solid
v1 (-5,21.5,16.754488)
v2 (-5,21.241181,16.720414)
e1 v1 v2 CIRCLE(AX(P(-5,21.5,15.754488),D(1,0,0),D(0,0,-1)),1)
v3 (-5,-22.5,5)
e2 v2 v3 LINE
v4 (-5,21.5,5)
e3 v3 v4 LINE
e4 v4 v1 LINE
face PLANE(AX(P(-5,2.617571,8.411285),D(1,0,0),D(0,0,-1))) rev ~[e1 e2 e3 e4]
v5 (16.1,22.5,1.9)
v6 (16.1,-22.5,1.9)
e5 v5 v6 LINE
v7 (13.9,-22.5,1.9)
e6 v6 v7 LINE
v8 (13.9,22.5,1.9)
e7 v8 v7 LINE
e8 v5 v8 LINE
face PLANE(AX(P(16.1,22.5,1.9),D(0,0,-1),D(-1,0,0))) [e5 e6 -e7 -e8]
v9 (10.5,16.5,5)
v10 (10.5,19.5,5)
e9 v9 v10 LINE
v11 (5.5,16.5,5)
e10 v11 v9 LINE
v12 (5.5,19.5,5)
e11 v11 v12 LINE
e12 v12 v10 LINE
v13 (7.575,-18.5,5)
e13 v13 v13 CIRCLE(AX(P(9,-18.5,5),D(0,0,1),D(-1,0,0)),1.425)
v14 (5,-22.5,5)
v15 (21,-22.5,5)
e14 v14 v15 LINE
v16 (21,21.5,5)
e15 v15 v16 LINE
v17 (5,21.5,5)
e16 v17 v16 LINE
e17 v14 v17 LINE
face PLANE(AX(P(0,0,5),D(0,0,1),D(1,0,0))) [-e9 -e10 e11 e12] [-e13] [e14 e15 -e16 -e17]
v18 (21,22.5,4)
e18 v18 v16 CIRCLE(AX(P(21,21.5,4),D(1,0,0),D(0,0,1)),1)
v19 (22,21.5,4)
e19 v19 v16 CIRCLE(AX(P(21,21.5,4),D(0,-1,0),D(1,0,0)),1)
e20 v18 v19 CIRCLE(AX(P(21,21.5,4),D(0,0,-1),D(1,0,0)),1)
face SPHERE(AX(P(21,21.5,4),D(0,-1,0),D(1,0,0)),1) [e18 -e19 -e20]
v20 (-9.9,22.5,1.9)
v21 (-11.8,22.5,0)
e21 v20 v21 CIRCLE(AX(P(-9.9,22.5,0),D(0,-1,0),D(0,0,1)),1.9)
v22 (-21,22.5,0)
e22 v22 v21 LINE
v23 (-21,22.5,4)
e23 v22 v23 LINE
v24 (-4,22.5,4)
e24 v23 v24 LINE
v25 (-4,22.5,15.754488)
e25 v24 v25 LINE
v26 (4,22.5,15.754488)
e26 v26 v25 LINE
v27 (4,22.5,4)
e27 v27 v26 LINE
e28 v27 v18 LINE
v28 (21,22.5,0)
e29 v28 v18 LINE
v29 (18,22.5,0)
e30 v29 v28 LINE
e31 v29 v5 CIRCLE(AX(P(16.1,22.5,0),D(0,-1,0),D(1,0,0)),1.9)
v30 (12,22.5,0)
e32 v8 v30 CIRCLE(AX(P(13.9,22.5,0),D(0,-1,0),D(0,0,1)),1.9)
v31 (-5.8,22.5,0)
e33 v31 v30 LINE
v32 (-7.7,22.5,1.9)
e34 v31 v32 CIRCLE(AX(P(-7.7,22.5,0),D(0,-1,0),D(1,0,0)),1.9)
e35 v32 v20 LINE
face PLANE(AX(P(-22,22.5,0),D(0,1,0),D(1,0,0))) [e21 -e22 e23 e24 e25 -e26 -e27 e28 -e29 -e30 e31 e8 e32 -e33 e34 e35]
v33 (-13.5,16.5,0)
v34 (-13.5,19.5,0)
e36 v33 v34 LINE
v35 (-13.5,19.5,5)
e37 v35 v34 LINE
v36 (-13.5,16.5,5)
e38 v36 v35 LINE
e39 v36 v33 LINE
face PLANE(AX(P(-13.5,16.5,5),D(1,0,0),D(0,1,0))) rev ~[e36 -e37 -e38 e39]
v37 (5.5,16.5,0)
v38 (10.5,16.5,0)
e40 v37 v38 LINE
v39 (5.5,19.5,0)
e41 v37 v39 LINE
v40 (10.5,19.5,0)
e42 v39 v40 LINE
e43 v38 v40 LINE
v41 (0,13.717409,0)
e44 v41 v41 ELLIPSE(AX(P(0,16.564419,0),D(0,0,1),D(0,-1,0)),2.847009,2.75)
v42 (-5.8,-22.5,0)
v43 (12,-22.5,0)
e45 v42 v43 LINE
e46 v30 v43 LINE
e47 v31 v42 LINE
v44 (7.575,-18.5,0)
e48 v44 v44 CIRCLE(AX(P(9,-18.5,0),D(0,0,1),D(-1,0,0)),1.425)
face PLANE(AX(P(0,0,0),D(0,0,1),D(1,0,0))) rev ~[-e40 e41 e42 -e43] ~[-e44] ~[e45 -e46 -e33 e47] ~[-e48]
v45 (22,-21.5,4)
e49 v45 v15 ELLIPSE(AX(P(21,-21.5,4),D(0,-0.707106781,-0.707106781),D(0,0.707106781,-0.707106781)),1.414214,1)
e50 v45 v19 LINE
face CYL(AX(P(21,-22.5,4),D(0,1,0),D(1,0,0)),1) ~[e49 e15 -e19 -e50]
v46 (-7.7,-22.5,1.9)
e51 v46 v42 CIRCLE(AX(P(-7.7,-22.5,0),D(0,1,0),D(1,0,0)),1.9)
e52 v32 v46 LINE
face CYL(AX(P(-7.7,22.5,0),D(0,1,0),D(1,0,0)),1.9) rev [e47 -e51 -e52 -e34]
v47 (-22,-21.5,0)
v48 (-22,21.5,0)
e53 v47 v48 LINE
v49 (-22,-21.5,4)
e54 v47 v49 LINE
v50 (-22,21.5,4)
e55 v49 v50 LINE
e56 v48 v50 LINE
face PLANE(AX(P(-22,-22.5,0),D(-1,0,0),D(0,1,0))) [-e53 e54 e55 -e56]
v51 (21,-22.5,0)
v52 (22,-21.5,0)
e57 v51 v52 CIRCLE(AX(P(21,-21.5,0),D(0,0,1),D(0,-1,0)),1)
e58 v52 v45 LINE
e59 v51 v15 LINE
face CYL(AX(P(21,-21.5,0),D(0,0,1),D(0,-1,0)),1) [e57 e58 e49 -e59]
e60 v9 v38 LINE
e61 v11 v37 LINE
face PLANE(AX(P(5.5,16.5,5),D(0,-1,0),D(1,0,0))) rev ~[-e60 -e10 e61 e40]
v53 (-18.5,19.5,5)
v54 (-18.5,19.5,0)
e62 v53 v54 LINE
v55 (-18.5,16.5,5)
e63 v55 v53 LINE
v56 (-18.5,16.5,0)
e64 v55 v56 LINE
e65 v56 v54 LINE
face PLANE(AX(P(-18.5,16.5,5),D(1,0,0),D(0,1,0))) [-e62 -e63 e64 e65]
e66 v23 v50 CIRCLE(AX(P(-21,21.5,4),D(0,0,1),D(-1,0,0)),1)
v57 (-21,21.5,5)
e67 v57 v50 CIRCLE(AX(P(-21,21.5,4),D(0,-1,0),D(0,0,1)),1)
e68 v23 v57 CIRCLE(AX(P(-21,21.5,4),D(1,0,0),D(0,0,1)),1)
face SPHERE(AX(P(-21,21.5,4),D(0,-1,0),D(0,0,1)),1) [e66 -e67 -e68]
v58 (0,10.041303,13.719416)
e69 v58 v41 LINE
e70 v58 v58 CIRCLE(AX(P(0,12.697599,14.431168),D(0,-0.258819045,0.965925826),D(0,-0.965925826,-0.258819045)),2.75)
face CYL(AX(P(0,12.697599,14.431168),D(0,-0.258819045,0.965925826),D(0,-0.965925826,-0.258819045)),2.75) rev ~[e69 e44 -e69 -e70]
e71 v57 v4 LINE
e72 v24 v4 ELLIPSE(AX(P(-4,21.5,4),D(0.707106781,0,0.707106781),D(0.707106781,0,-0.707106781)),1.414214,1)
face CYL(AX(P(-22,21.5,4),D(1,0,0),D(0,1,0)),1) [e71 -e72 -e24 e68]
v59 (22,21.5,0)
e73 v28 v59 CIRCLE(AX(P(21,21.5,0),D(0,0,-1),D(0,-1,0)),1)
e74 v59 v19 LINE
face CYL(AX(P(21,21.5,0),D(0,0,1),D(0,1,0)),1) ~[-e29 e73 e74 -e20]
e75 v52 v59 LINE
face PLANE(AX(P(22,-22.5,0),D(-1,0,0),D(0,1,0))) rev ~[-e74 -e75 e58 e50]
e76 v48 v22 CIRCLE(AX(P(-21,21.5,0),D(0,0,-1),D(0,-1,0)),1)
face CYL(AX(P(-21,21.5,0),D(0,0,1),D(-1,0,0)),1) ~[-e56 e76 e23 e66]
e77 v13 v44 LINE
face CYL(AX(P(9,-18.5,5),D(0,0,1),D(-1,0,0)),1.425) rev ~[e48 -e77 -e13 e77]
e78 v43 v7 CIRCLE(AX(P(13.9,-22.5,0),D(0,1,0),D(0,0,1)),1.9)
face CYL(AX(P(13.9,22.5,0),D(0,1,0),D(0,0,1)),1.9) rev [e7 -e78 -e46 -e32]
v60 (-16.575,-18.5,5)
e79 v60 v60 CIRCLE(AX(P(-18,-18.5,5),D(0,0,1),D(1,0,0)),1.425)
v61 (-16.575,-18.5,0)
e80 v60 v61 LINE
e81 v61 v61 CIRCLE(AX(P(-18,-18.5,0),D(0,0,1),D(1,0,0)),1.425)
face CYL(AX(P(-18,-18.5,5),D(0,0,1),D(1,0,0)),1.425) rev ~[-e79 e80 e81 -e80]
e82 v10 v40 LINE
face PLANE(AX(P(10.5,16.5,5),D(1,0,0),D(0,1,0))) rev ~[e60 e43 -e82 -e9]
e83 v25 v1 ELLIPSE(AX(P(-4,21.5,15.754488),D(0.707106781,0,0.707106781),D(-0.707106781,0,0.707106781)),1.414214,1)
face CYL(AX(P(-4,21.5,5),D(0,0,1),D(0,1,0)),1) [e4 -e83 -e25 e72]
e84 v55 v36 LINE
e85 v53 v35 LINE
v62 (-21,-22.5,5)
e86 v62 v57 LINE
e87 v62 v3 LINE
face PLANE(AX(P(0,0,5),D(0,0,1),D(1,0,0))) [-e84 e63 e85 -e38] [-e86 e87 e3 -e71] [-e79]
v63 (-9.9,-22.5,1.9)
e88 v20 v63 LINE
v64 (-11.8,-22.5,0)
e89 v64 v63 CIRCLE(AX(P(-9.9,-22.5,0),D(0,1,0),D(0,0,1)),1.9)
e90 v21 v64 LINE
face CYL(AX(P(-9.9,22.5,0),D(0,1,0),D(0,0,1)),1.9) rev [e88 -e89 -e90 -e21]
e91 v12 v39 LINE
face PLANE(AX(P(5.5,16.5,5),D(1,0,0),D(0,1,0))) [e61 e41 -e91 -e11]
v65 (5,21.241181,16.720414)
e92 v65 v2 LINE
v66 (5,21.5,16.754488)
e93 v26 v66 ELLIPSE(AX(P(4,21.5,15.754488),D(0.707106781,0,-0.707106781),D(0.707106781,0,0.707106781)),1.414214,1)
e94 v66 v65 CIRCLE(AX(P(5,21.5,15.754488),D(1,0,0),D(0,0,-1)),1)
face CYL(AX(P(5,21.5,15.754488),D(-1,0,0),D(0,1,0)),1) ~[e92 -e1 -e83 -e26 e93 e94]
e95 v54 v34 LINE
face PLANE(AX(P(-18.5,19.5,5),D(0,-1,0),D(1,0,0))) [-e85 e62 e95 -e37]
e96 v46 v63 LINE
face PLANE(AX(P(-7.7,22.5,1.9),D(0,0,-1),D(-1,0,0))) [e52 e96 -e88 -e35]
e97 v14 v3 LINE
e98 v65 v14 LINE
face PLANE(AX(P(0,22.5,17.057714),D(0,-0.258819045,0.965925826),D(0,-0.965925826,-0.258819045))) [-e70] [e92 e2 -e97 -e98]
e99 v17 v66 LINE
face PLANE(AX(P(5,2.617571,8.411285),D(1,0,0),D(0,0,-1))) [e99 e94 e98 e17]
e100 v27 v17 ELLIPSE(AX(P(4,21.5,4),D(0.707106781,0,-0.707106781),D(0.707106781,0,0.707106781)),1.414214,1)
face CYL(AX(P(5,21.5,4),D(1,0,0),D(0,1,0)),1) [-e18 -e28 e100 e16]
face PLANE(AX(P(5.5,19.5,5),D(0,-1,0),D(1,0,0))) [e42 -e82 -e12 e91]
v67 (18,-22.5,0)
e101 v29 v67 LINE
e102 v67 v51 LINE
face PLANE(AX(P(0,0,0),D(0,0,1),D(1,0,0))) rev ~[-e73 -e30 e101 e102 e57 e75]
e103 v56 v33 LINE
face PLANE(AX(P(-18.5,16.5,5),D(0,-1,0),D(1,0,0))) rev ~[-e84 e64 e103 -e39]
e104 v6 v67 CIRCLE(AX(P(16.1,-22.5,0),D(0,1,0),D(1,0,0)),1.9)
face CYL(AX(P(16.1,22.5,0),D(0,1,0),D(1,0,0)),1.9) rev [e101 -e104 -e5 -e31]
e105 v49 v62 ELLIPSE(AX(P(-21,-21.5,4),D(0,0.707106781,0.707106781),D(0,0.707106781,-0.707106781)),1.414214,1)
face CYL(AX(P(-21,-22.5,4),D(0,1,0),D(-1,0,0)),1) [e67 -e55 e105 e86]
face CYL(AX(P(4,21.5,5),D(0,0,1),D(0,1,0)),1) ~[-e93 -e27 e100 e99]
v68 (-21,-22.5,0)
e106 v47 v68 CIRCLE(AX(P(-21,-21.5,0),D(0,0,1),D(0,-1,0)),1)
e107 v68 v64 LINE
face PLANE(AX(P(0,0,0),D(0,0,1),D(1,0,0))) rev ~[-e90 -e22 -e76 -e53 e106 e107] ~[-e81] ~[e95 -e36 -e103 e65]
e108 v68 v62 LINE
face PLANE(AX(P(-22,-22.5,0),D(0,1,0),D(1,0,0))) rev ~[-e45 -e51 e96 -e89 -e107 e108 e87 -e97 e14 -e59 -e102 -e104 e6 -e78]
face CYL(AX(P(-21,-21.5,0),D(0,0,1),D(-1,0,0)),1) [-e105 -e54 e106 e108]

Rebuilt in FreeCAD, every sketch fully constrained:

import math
import FreeCAD as App
import Part
import Sketcher

V = App.Vector
Q = App.Units.Quantity


def edges_at(feature, points):
    """Names of the edges that pass closest to the given points."""
    edges = feature.Shape.Edges
    near = lambda p: min(range(len(edges)), key=lambda i: edges[i].distToShape(Part.Vertex(*p))[0])
    return sorted({f"Edge{near(p) + 1}" for p in points})

doc = App.newDocument("Part")
body = doc.addObject("PartDesign::Body", "Body")

sketch1 = body.newObject("Sketcher::SketchObject", "Sketch")
sketch1.AttachmentSupport = (doc.getObject("XY_Plane"), [""])
sketch1.MapMode = "FlatFace"
sketch1.addGeometry(Part.LineSegment(V(-22, 22.5, 0), V(-22, -22.5, 0)), False)
sketch1.addGeometry(Part.LineSegment(V(-22, -22.5, 0), V(22, -22.5, 0)), False)
sketch1.addGeometry(Part.LineSegment(V(22, -22.5, 0), V(22, 22.5, 0)), False)
sketch1.addGeometry(Part.LineSegment(V(22, 22.5, 0), V(-22, 22.5, 0)), False)
sketch1.addConstraint(Sketcher.Constraint("Coincident", 0, 2, 1, 1))
sketch1.addConstraint(Sketcher.Constraint("Coincident", 1, 2, 2, 1))
sketch1.addConstraint(Sketcher.Constraint("Coincident", 2, 2, 3, 1))
sketch1.addConstraint(Sketcher.Constraint("Coincident", 3, 2, 0, 1))
sketch1.addConstraint(Sketcher.Constraint("Vertical", 0))
sketch1.addConstraint(Sketcher.Constraint("Horizontal", 1))
sketch1.addConstraint(Sketcher.Constraint("Vertical", 2))
sketch1.addConstraint(Sketcher.Constraint("Horizontal", 3))
sketch1.addConstraint(Sketcher.Constraint("Symmetric", 0, 2, 2, 2, -1, 1))
sketch1.addConstraint(Sketcher.Constraint("DistanceX", 1, 1, 1, 2, 44.0))
sketch1.addConstraint(Sketcher.Constraint("DistanceY", 0, 2, 0, 1, 45.0))
pad1 = body.newObject("PartDesign::Pad", "Pad")
pad1.Profile = sketch1
pad1.Length = 5

sketch2 = body.newObject("Sketcher::SketchObject", "Sketch001")
sketch2.AttachmentSupport = (doc.getObject("XZ_Plane"), [""])
sketch2.MapMode = "FlatFace"
sketch2.AttachmentOffset = App.Placement(V(0, 0, -22.5), App.Rotation())
sketch2.addGeometry(Part.LineSegment(V(18, 0, 0), V(12, 0, 0)), False)
sketch2.addGeometry(Part.ArcOfCircle(Part.Circle(V(13.9, 0, 0), V(0, 0, 1), 1.9), math.radians(90), math.radians(180)), False)
sketch2.addGeometry(Part.LineSegment(V(13.9, 1.9, 0), V(16.1, 1.9, 0)), False)
sketch2.addGeometry(Part.ArcOfCircle(Part.Circle(V(16.1, 0, 0), V(0, 0, 1), 1.9), math.radians(0), math.radians(90)), False)
sketch2.addGeometry(Part.LineSegment(V(-9.9, 1.9, 0), V(-7.7, 1.9, 0)), False)
sketch2.addGeometry(Part.ArcOfCircle(Part.Circle(V(-7.7, 0, 0), V(0, 0, 1), 1.9), math.radians(0), math.radians(90)), False)
sketch2.addGeometry(Part.LineSegment(V(-5.8, 0, 0), V(-11.8, 0, 0)), False)
sketch2.addGeometry(Part.ArcOfCircle(Part.Circle(V(-9.9, 0, 0), V(0, 0, 1), 1.9), math.radians(90), math.radians(180)), False)
sketch2.addConstraint(Sketcher.Constraint("Coincident", 0, 2, 1, 2))
sketch2.addConstraint(Sketcher.Constraint("Tangent", 1, 1, 2, 1))
sketch2.addConstraint(Sketcher.Constraint("Tangent", 2, 2, 3, 2))
sketch2.addConstraint(Sketcher.Constraint("Coincident", 3, 1, 0, 1))
sketch2.addConstraint(Sketcher.Constraint("Tangent", 4, 2, 5, 2))
sketch2.addConstraint(Sketcher.Constraint("Coincident", 5, 1, 6, 1))
sketch2.addConstraint(Sketcher.Constraint("Coincident", 6, 2, 7, 2))
sketch2.addConstraint(Sketcher.Constraint("Tangent", 7, 1, 4, 1))
sketch2.addConstraint(Sketcher.Constraint("Horizontal", 0))
sketch2.addConstraint(Sketcher.Constraint("Horizontal", 2))
sketch2.addConstraint(Sketcher.Constraint("Horizontal", 4))
sketch2.addConstraint(Sketcher.Constraint("Horizontal", 6))
sketch2.addConstraint(Sketcher.Constraint("Equal", 1, 3))
sketch2.addConstraint(Sketcher.Constraint("Equal", 3, 5))
sketch2.addConstraint(Sketcher.Constraint("Equal", 5, 7))
sketch2.addConstraint(Sketcher.Constraint("PointOnObject", 1, 3, -1))
sketch2.addConstraint(Sketcher.Constraint("PointOnObject", 5, 3, -1))
sketch2.addConstraint(Sketcher.Constraint("PointOnObject", 0, 2, -1))
sketch2.addConstraint(Sketcher.Constraint("PointOnObject", 5, 1, -1))
sketch2.addConstraint(Sketcher.Constraint("Equal", 2, 4))
sketch2.addConstraint(Sketcher.Constraint("Radius", 1, 1.9))
sketch2.addConstraint(Sketcher.Constraint("DistanceX", 0, 2, 0, 1, 6.0))
sketch2.addConstraint(Sketcher.Constraint("DistanceX", -1, 1, 0, 2, 12.0))
sketch2.addConstraint(Sketcher.Constraint("DistanceX", 7, 3, 3, 3, 26.0))
pocket1 = body.newObject("PartDesign::Pocket", "Pocket")
pocket1.Profile = sketch2
pocket1.Type = "ThroughAll"
pocket1.Reversed = True

sketch3 = body.newObject("Sketcher::SketchObject", "Sketch002")
sketch3.AttachmentSupport = (doc.getObject("YZ_Plane"), [""])
sketch3.MapMode = "FlatFace"
sketch3.addGeometry(Part.LineSegment(V(-22.5, 5, 0), V(22.5, 5, 0)), False)
sketch3.addGeometry(Part.LineSegment(V(22.5, 5, 0), V(22.5, 17.057714, 0)), False)
sketch3.addGeometry(Part.LineSegment(V(22.5, 17.057714, 0), V(-22.5, 5, 0)), False)
sketch3.addConstraint(Sketcher.Constraint("Coincident", 0, 2, 1, 1))
sketch3.addConstraint(Sketcher.Constraint("Coincident", 1, 2, 2, 1))
sketch3.addConstraint(Sketcher.Constraint("Coincident", 2, 2, 0, 1))
sketch3.addConstraint(Sketcher.Constraint("Horizontal", 0))
sketch3.addConstraint(Sketcher.Constraint("Vertical", 1))
sketch3.addConstraint(Sketcher.Constraint("DistanceX", 0, 1, 0, 2, 45.0))
sketch3.addConstraint(Sketcher.Constraint("Angle", 2, Q("-165 deg")))
sketch3.addConstraint(Sketcher.Constraint("DistanceY", -1, 1, 0, 2, 5.0))
sketch3.addConstraint(Sketcher.Constraint("DistanceX", -1, 1, 0, 2, 22.5))
pad2 = body.newObject("PartDesign::Pad", "Pad001")
pad2.Profile = sketch3
pad2.Length = 10
pad2.Midplane = True

sketch4 = body.newObject("Sketcher::SketchObject", "Sketch003")
sketch4.Placement = App.Placement(V(0, -2.757214, 10.290064), App.Rotation(V(1, 0, 0), V(0, 0.965925826, 0.258819045), V(0, -0.258819045, 0.965925826), "ZXY"))
sketch4.addGeometry(Part.Circle(V(0, 16, 0), V(0, 0, 1), 2.75), False)
sketch4.addConstraint(Sketcher.Constraint("PointOnObject", 0, 3, -2))
sketch4.addConstraint(Sketcher.Constraint("Diameter", 0, 5.5))
sketch4.addConstraint(Sketcher.Constraint("DistanceY", -1, 1, 0, 3, 16.0))
pocket2 = body.newObject("PartDesign::Pocket", "Pocket001")
pocket2.Profile = sketch4
pocket2.Type = "ThroughAll"

sketch5 = body.newObject("Sketcher::SketchObject", "Sketch004")
sketch5.AttachmentSupport = (doc.getObject("XY_Plane"), [""])
sketch5.MapMode = "FlatFace"
sketch5.AttachmentOffset = App.Placement(V(0, 0, 5), App.Rotation())
sketch5.addGeometry(Part.LineSegment(V(-18.5, 19.5, 0), V(-18.5, 16.5, 0)), False)
sketch5.addGeometry(Part.LineSegment(V(-18.5, 16.5, 0), V(-13.5, 16.5, 0)), False)
sketch5.addGeometry(Part.LineSegment(V(-13.5, 16.5, 0), V(-13.5, 19.5, 0)), False)
sketch5.addGeometry(Part.LineSegment(V(-13.5, 19.5, 0), V(-18.5, 19.5, 0)), False)
sketch5.addGeometry(Part.LineSegment(V(5.5, 19.5, 0), V(5.5, 16.5, 0)), False)
sketch5.addGeometry(Part.LineSegment(V(5.5, 16.5, 0), V(10.5, 16.5, 0)), False)
sketch5.addGeometry(Part.LineSegment(V(10.5, 16.5, 0), V(10.5, 19.5, 0)), False)
sketch5.addGeometry(Part.LineSegment(V(10.5, 19.5, 0), V(5.5, 19.5, 0)), False)
sketch5.addConstraint(Sketcher.Constraint("Coincident", 0, 2, 1, 1))
sketch5.addConstraint(Sketcher.Constraint("Coincident", 1, 2, 2, 1))
sketch5.addConstraint(Sketcher.Constraint("Coincident", 2, 2, 3, 1))
sketch5.addConstraint(Sketcher.Constraint("Coincident", 3, 2, 0, 1))
sketch5.addConstraint(Sketcher.Constraint("Coincident", 4, 2, 5, 1))
sketch5.addConstraint(Sketcher.Constraint("Coincident", 5, 2, 6, 1))
sketch5.addConstraint(Sketcher.Constraint("Coincident", 6, 2, 7, 1))
sketch5.addConstraint(Sketcher.Constraint("Coincident", 7, 2, 4, 1))
sketch5.addConstraint(Sketcher.Constraint("Vertical", 0))
sketch5.addConstraint(Sketcher.Constraint("Horizontal", 1))
sketch5.addConstraint(Sketcher.Constraint("Vertical", 2))
sketch5.addConstraint(Sketcher.Constraint("Horizontal", 3))
sketch5.addConstraint(Sketcher.Constraint("Vertical", 4))
sketch5.addConstraint(Sketcher.Constraint("Horizontal", 5))
sketch5.addConstraint(Sketcher.Constraint("Vertical", 6))
sketch5.addConstraint(Sketcher.Constraint("Horizontal", 7))
sketch5.addConstraint(Sketcher.Constraint("Horizontal", 1, 2, 4, 2))
sketch5.addConstraint(Sketcher.Constraint("Horizontal", 3, 2, 6, 2))
sketch5.addConstraint(Sketcher.Constraint("Equal", 3, 5))
sketch5.addConstraint(Sketcher.Constraint("DistanceX", 1, 1, 1, 2, 5.0))
sketch5.addConstraint(Sketcher.Constraint("DistanceY", 0, 2, 0, 1, 3.0))
sketch5.addConstraint(Sketcher.Constraint("DistanceX", 1, 2, 4, 2, 19.0))
sketch5.addConstraint(Sketcher.Constraint("DistanceX", 0, 2, -1, 1, 18.5))
sketch5.addConstraint(Sketcher.Constraint("DistanceY", -1, 1, 0, 2, 16.5))
pocket3 = body.newObject("PartDesign::Pocket", "Pocket002")
pocket3.Profile = sketch5
pocket3.Type = "ThroughAll"

sketch6 = body.newObject("Sketcher::SketchObject", "Sketch005")
sketch6.AttachmentSupport = (doc.getObject("XY_Plane"), [""])
sketch6.MapMode = "FlatFace"
sketch6.AttachmentOffset = App.Placement(V(0, 0, 5), App.Rotation())
sketch6.addGeometry(Part.Circle(V(-18, -18.5, 0), V(0, 0, 1), 1.425), False)
sketch6.addGeometry(Part.Circle(V(9, -18.5, 0), V(0, 0, 1), 1.425), False)
sketch6.addConstraint(Sketcher.Constraint("Equal", 0, 1))
sketch6.addConstraint(Sketcher.Constraint("Horizontal", 0, 3, 1, 3))
sketch6.addConstraint(Sketcher.Constraint("Diameter", 0, 2.85))
sketch6.addConstraint(Sketcher.Constraint("DistanceX", 0, 3, -1, 1, 18.0))
sketch6.addConstraint(Sketcher.Constraint("DistanceX", -1, 1, 1, 3, 9.0))
sketch6.addConstraint(Sketcher.Constraint("DistanceY", 0, 3, -1, 1, 18.5))
pocket4 = body.newObject("PartDesign::Pocket", "Pocket003")
pocket4.Profile = sketch6
pocket4.Type = "ThroughAll"
doc.recompute()

fillet = body.newObject("PartDesign::Fillet", "Fillet")
fillet.Base = (pocket4, edges_at(pocket4, [
    (-22, 0, 5),
    (-13.5, 22.5, 5),
    (-5, 22.5, 11.029),
    (0, 22.5, 17.058),
    (22, 0, 5),
    (5, 22.5, 11.029),
    (22, -22.5, 2.5),
    (-22, -22.5, 2.5),
    (-22, 22.5, 2.5),
    (22, 22.5, 2.5),
    (13.5, 22.5, 5),
]))
fillet.Radius = 1

doc.recompute()
